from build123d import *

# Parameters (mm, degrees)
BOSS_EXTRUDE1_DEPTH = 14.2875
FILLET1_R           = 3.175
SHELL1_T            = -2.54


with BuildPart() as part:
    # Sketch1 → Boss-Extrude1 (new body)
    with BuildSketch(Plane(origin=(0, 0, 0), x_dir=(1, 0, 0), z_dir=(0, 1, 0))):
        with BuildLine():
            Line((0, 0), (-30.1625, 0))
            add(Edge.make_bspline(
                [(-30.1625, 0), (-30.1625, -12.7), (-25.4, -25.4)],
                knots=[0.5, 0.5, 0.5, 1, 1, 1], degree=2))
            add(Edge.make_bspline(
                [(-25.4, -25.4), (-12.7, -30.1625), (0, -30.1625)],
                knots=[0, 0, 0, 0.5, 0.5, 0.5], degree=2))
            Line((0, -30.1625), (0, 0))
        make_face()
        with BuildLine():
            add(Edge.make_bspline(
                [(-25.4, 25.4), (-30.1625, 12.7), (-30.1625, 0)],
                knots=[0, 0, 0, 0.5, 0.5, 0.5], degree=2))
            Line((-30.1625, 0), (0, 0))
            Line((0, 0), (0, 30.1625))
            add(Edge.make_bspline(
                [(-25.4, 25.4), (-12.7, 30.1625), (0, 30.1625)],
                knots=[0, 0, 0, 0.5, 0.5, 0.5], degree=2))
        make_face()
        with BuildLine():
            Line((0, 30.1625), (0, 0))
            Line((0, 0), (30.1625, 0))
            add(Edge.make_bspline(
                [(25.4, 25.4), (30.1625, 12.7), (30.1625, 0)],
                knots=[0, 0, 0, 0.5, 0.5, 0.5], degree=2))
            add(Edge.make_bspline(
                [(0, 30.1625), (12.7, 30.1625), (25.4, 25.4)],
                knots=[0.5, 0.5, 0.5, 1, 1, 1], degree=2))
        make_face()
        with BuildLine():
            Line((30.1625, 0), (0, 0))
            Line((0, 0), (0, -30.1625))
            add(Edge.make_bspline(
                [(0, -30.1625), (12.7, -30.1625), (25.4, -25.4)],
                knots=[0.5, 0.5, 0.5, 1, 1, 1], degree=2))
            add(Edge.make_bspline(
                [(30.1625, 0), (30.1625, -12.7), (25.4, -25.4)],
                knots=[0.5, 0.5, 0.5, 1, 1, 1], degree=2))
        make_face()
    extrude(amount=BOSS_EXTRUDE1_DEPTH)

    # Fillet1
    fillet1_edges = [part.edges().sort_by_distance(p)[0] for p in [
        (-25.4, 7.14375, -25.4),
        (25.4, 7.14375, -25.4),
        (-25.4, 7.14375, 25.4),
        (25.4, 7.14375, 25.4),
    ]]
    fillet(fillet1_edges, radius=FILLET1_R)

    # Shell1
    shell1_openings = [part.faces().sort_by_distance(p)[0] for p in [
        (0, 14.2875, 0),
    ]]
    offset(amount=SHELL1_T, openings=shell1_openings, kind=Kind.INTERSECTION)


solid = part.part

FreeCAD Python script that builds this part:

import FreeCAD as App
import Part
import Sketcher
from FreeCAD import Vector
Q = App.Units.Quantity


def edges_at(feature, points):
    """Names of the edges that pass closest to the given points."""
    edges = feature.Shape.Edges
    near = lambda p: min(range(len(edges)), key=lambda i: edges[i].distToShape(Part.Vertex(*p))[0])
    return sorted({f"Edge{near(p) + 1}" for p in points})


def faces_at(feature, points):
    """Names of the faces that lie closest to the given points."""
    faces = feature.Shape.Faces
    near = lambda p: min(range(len(faces)), key=lambda i: faces[i].distToShape(Part.Vertex(*p))[0])
    return sorted({f"Face{near(p) + 1}" for p in points})

doc = App.newDocument("Part")
body = doc.addObject("PartDesign::Body", "Body")

sketch1 = body.newObject("Sketcher::SketchObject", "Sketch")
sketch1.AttachmentSupport = (doc.getObject("XZ_Plane"), [""])
sketch1.MapMode = "FlatFace"
sketch1.addGeometry([
    Part.BSplineCurve([Vector(-25.4, 25.4, 0), Vector(0, 34.925, 0), Vector(25.4, 25.4, 0)], [3, 3], [0, 1], False, 2, [1, 1, 1], False),
    Part.BSplineCurve([Vector(25.4, 25.4, 0), Vector(34.925, 0, 0), Vector(25.4, -25.4, 0)], [3, 3], [0.5, 1.5], False, 2, [1, 1, 1], False),
    Part.BSplineCurve([Vector(25.4, -25.4, 0), Vector(0, -34.925, 0), Vector(-25.4, -25.4, 0)], [3, 3], [0.5, 1.5], False, 2, [1, 1, 1], False),
    Part.BSplineCurve([Vector(-25.4, -25.4, 0), Vector(-34.925, 0, 0), Vector(-25.4, 25.4, 0)], [3, 3], [0, 1], False, 2, [1, 1, 1], False),
], False)
sketch1.addConstraint([
    Sketcher.Constraint("Block", 0),
    Sketcher.Constraint("Block", 1),
    Sketcher.Constraint("Block", 2),
    Sketcher.Constraint("Block", 3),
])
pad1 = body.newObject("PartDesign::Pad", "Pad")
pad1.Profile = sketch1
pad1.Length = Q("0.5625 in")
pad1.Reversed = True
doc.recompute()

fillet = body.newObject("PartDesign::Fillet", "Fillet")
fillet.Base = (pad1, edges_at(pad1, [
    (-25.4, 7.144, -25.4),
    (25.4, 7.144, -25.4),
    (-25.4, 7.144, 25.4),
    (25.4, 7.144, 25.4),
]))
fillet.Radius = Q("0.125 in")
doc.recompute()

thickness = body.newObject("PartDesign::Thickness", "Thickness")
thickness.Base = (fillet, faces_at(fillet, [(0, 14.287, 0)]))
thickness.Value = Q("0.1 in")
thickness.Reversed = True
thickness.Join = "Intersection"

doc.recompute()
